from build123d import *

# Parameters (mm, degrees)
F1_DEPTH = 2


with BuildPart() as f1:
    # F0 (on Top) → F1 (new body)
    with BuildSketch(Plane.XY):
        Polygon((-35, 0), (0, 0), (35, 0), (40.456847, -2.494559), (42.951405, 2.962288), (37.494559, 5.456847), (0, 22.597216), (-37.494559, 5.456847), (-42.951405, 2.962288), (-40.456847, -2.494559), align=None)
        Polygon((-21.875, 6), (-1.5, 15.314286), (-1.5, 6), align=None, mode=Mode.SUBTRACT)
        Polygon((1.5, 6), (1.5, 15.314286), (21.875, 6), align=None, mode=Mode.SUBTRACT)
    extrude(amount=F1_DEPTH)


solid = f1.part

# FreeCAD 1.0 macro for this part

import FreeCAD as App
import Part
import Sketcher


def add_polygon(sketch, points):
    """Adds a closed chain of lines whose ends are joined by coincident constraints."""
    first, n = sketch.GeometryCount, len(points)
    for a, b in zip(points, points[1:] + points[:1]):
        sketch.addGeometry(Part.LineSegment(App.Vector(*a, 0), App.Vector(*b, 0)), False)
    for i in range(n):
        sketch.addConstraint(Sketcher.Constraint("Coincident", first + i, 2, first + (i + 1) % n, 1))

doc = App.newDocument("Part")
body = doc.addObject("PartDesign::Body", "Body")

sketch1 = doc.addObject("Sketcher::SketchObject", "Sketch")
body.addObject(sketch1)
sketch1.AttachmentSupport = (doc.XY_Plane, [""])
sketch1.MapMode = "FlatFace"
add_polygon(sketch1, [(-35, 0), (35, 0), (40.456847, -2.494559), (42.951405, 2.962288), (37.494559, 5.456847), (0, 22.597216), (-37.494559, 5.456847), (-42.951405, 2.962288), (-40.456847, -2.494559)])
add_polygon(sketch1, [(-1.5, 6), (-21.875, 6), (-1.5, 15.314286)])
add_polygon(sketch1, [(21.875, 6), (1.5, 6), (1.5, 15.314286)])
sketch1.addConstraint([
    Sketcher.Constraint("Horizontal", 0),
    Sketcher.Constraint("Horizontal", 9),
    Sketcher.Constraint("Vertical", 11),
    Sketcher.Constraint("Horizontal", 12),
    Sketcher.Constraint("Vertical", 13),
    Sketcher.Constraint("Symmetric", 0, 2, 8, 2, -1, 1),
    Sketcher.Constraint("Symmetric", 3, 2, 5, 2, -2),
    Sketcher.Constraint("Symmetric", 2, 2, 6, 2, -2),
    Sketcher.Constraint("Symmetric", 1, 2, 7, 2, -2),
    Sketcher.Constraint("Symmetric", 11, 2, 12, 2, -2),
    Sketcher.Constraint("PointOnObject", 4, 2, -2),
    Sketcher.Constraint("Perpendicular", 1, 2),
    Sketcher.Constraint("Perpendicular", 2, 3),
    Sketcher.Constraint("Parallel", 3, 4),
    Sketcher.Constraint("Parallel", 8, 10),
    Sketcher.Constraint("Parallel", 4, 14),
    Sketcher.Constraint("Horizontal", 10, 2, 13, 2),
    Sketcher.Constraint("Equal", 1, 2),
    Sketcher.Constraint("Equal", 2, 3),
    Sketcher.Constraint("DistanceX", 0, 1, 0, 2, 70.0),
    Sketcher.Constraint("Distance", 1, 6.0),
    Sketcher.Constraint("DistanceY", -1, 1, 9, 2, 6.0),
    Sketcher.Constraint("DistanceX", 11, 2, 12, 2, 3.0),
    Sketcher.Constraint("DistanceX", 9, 2, 9, 1, 20.375),
    Sketcher.Constraint("Distance", 4, 41.22662),
])
pad1 = doc.addObject("PartDesign::Pad", "Pad")
body.addObject(pad1)
pad1.Profile = sketch1
pad1.Length = 2

doc.recompute()
